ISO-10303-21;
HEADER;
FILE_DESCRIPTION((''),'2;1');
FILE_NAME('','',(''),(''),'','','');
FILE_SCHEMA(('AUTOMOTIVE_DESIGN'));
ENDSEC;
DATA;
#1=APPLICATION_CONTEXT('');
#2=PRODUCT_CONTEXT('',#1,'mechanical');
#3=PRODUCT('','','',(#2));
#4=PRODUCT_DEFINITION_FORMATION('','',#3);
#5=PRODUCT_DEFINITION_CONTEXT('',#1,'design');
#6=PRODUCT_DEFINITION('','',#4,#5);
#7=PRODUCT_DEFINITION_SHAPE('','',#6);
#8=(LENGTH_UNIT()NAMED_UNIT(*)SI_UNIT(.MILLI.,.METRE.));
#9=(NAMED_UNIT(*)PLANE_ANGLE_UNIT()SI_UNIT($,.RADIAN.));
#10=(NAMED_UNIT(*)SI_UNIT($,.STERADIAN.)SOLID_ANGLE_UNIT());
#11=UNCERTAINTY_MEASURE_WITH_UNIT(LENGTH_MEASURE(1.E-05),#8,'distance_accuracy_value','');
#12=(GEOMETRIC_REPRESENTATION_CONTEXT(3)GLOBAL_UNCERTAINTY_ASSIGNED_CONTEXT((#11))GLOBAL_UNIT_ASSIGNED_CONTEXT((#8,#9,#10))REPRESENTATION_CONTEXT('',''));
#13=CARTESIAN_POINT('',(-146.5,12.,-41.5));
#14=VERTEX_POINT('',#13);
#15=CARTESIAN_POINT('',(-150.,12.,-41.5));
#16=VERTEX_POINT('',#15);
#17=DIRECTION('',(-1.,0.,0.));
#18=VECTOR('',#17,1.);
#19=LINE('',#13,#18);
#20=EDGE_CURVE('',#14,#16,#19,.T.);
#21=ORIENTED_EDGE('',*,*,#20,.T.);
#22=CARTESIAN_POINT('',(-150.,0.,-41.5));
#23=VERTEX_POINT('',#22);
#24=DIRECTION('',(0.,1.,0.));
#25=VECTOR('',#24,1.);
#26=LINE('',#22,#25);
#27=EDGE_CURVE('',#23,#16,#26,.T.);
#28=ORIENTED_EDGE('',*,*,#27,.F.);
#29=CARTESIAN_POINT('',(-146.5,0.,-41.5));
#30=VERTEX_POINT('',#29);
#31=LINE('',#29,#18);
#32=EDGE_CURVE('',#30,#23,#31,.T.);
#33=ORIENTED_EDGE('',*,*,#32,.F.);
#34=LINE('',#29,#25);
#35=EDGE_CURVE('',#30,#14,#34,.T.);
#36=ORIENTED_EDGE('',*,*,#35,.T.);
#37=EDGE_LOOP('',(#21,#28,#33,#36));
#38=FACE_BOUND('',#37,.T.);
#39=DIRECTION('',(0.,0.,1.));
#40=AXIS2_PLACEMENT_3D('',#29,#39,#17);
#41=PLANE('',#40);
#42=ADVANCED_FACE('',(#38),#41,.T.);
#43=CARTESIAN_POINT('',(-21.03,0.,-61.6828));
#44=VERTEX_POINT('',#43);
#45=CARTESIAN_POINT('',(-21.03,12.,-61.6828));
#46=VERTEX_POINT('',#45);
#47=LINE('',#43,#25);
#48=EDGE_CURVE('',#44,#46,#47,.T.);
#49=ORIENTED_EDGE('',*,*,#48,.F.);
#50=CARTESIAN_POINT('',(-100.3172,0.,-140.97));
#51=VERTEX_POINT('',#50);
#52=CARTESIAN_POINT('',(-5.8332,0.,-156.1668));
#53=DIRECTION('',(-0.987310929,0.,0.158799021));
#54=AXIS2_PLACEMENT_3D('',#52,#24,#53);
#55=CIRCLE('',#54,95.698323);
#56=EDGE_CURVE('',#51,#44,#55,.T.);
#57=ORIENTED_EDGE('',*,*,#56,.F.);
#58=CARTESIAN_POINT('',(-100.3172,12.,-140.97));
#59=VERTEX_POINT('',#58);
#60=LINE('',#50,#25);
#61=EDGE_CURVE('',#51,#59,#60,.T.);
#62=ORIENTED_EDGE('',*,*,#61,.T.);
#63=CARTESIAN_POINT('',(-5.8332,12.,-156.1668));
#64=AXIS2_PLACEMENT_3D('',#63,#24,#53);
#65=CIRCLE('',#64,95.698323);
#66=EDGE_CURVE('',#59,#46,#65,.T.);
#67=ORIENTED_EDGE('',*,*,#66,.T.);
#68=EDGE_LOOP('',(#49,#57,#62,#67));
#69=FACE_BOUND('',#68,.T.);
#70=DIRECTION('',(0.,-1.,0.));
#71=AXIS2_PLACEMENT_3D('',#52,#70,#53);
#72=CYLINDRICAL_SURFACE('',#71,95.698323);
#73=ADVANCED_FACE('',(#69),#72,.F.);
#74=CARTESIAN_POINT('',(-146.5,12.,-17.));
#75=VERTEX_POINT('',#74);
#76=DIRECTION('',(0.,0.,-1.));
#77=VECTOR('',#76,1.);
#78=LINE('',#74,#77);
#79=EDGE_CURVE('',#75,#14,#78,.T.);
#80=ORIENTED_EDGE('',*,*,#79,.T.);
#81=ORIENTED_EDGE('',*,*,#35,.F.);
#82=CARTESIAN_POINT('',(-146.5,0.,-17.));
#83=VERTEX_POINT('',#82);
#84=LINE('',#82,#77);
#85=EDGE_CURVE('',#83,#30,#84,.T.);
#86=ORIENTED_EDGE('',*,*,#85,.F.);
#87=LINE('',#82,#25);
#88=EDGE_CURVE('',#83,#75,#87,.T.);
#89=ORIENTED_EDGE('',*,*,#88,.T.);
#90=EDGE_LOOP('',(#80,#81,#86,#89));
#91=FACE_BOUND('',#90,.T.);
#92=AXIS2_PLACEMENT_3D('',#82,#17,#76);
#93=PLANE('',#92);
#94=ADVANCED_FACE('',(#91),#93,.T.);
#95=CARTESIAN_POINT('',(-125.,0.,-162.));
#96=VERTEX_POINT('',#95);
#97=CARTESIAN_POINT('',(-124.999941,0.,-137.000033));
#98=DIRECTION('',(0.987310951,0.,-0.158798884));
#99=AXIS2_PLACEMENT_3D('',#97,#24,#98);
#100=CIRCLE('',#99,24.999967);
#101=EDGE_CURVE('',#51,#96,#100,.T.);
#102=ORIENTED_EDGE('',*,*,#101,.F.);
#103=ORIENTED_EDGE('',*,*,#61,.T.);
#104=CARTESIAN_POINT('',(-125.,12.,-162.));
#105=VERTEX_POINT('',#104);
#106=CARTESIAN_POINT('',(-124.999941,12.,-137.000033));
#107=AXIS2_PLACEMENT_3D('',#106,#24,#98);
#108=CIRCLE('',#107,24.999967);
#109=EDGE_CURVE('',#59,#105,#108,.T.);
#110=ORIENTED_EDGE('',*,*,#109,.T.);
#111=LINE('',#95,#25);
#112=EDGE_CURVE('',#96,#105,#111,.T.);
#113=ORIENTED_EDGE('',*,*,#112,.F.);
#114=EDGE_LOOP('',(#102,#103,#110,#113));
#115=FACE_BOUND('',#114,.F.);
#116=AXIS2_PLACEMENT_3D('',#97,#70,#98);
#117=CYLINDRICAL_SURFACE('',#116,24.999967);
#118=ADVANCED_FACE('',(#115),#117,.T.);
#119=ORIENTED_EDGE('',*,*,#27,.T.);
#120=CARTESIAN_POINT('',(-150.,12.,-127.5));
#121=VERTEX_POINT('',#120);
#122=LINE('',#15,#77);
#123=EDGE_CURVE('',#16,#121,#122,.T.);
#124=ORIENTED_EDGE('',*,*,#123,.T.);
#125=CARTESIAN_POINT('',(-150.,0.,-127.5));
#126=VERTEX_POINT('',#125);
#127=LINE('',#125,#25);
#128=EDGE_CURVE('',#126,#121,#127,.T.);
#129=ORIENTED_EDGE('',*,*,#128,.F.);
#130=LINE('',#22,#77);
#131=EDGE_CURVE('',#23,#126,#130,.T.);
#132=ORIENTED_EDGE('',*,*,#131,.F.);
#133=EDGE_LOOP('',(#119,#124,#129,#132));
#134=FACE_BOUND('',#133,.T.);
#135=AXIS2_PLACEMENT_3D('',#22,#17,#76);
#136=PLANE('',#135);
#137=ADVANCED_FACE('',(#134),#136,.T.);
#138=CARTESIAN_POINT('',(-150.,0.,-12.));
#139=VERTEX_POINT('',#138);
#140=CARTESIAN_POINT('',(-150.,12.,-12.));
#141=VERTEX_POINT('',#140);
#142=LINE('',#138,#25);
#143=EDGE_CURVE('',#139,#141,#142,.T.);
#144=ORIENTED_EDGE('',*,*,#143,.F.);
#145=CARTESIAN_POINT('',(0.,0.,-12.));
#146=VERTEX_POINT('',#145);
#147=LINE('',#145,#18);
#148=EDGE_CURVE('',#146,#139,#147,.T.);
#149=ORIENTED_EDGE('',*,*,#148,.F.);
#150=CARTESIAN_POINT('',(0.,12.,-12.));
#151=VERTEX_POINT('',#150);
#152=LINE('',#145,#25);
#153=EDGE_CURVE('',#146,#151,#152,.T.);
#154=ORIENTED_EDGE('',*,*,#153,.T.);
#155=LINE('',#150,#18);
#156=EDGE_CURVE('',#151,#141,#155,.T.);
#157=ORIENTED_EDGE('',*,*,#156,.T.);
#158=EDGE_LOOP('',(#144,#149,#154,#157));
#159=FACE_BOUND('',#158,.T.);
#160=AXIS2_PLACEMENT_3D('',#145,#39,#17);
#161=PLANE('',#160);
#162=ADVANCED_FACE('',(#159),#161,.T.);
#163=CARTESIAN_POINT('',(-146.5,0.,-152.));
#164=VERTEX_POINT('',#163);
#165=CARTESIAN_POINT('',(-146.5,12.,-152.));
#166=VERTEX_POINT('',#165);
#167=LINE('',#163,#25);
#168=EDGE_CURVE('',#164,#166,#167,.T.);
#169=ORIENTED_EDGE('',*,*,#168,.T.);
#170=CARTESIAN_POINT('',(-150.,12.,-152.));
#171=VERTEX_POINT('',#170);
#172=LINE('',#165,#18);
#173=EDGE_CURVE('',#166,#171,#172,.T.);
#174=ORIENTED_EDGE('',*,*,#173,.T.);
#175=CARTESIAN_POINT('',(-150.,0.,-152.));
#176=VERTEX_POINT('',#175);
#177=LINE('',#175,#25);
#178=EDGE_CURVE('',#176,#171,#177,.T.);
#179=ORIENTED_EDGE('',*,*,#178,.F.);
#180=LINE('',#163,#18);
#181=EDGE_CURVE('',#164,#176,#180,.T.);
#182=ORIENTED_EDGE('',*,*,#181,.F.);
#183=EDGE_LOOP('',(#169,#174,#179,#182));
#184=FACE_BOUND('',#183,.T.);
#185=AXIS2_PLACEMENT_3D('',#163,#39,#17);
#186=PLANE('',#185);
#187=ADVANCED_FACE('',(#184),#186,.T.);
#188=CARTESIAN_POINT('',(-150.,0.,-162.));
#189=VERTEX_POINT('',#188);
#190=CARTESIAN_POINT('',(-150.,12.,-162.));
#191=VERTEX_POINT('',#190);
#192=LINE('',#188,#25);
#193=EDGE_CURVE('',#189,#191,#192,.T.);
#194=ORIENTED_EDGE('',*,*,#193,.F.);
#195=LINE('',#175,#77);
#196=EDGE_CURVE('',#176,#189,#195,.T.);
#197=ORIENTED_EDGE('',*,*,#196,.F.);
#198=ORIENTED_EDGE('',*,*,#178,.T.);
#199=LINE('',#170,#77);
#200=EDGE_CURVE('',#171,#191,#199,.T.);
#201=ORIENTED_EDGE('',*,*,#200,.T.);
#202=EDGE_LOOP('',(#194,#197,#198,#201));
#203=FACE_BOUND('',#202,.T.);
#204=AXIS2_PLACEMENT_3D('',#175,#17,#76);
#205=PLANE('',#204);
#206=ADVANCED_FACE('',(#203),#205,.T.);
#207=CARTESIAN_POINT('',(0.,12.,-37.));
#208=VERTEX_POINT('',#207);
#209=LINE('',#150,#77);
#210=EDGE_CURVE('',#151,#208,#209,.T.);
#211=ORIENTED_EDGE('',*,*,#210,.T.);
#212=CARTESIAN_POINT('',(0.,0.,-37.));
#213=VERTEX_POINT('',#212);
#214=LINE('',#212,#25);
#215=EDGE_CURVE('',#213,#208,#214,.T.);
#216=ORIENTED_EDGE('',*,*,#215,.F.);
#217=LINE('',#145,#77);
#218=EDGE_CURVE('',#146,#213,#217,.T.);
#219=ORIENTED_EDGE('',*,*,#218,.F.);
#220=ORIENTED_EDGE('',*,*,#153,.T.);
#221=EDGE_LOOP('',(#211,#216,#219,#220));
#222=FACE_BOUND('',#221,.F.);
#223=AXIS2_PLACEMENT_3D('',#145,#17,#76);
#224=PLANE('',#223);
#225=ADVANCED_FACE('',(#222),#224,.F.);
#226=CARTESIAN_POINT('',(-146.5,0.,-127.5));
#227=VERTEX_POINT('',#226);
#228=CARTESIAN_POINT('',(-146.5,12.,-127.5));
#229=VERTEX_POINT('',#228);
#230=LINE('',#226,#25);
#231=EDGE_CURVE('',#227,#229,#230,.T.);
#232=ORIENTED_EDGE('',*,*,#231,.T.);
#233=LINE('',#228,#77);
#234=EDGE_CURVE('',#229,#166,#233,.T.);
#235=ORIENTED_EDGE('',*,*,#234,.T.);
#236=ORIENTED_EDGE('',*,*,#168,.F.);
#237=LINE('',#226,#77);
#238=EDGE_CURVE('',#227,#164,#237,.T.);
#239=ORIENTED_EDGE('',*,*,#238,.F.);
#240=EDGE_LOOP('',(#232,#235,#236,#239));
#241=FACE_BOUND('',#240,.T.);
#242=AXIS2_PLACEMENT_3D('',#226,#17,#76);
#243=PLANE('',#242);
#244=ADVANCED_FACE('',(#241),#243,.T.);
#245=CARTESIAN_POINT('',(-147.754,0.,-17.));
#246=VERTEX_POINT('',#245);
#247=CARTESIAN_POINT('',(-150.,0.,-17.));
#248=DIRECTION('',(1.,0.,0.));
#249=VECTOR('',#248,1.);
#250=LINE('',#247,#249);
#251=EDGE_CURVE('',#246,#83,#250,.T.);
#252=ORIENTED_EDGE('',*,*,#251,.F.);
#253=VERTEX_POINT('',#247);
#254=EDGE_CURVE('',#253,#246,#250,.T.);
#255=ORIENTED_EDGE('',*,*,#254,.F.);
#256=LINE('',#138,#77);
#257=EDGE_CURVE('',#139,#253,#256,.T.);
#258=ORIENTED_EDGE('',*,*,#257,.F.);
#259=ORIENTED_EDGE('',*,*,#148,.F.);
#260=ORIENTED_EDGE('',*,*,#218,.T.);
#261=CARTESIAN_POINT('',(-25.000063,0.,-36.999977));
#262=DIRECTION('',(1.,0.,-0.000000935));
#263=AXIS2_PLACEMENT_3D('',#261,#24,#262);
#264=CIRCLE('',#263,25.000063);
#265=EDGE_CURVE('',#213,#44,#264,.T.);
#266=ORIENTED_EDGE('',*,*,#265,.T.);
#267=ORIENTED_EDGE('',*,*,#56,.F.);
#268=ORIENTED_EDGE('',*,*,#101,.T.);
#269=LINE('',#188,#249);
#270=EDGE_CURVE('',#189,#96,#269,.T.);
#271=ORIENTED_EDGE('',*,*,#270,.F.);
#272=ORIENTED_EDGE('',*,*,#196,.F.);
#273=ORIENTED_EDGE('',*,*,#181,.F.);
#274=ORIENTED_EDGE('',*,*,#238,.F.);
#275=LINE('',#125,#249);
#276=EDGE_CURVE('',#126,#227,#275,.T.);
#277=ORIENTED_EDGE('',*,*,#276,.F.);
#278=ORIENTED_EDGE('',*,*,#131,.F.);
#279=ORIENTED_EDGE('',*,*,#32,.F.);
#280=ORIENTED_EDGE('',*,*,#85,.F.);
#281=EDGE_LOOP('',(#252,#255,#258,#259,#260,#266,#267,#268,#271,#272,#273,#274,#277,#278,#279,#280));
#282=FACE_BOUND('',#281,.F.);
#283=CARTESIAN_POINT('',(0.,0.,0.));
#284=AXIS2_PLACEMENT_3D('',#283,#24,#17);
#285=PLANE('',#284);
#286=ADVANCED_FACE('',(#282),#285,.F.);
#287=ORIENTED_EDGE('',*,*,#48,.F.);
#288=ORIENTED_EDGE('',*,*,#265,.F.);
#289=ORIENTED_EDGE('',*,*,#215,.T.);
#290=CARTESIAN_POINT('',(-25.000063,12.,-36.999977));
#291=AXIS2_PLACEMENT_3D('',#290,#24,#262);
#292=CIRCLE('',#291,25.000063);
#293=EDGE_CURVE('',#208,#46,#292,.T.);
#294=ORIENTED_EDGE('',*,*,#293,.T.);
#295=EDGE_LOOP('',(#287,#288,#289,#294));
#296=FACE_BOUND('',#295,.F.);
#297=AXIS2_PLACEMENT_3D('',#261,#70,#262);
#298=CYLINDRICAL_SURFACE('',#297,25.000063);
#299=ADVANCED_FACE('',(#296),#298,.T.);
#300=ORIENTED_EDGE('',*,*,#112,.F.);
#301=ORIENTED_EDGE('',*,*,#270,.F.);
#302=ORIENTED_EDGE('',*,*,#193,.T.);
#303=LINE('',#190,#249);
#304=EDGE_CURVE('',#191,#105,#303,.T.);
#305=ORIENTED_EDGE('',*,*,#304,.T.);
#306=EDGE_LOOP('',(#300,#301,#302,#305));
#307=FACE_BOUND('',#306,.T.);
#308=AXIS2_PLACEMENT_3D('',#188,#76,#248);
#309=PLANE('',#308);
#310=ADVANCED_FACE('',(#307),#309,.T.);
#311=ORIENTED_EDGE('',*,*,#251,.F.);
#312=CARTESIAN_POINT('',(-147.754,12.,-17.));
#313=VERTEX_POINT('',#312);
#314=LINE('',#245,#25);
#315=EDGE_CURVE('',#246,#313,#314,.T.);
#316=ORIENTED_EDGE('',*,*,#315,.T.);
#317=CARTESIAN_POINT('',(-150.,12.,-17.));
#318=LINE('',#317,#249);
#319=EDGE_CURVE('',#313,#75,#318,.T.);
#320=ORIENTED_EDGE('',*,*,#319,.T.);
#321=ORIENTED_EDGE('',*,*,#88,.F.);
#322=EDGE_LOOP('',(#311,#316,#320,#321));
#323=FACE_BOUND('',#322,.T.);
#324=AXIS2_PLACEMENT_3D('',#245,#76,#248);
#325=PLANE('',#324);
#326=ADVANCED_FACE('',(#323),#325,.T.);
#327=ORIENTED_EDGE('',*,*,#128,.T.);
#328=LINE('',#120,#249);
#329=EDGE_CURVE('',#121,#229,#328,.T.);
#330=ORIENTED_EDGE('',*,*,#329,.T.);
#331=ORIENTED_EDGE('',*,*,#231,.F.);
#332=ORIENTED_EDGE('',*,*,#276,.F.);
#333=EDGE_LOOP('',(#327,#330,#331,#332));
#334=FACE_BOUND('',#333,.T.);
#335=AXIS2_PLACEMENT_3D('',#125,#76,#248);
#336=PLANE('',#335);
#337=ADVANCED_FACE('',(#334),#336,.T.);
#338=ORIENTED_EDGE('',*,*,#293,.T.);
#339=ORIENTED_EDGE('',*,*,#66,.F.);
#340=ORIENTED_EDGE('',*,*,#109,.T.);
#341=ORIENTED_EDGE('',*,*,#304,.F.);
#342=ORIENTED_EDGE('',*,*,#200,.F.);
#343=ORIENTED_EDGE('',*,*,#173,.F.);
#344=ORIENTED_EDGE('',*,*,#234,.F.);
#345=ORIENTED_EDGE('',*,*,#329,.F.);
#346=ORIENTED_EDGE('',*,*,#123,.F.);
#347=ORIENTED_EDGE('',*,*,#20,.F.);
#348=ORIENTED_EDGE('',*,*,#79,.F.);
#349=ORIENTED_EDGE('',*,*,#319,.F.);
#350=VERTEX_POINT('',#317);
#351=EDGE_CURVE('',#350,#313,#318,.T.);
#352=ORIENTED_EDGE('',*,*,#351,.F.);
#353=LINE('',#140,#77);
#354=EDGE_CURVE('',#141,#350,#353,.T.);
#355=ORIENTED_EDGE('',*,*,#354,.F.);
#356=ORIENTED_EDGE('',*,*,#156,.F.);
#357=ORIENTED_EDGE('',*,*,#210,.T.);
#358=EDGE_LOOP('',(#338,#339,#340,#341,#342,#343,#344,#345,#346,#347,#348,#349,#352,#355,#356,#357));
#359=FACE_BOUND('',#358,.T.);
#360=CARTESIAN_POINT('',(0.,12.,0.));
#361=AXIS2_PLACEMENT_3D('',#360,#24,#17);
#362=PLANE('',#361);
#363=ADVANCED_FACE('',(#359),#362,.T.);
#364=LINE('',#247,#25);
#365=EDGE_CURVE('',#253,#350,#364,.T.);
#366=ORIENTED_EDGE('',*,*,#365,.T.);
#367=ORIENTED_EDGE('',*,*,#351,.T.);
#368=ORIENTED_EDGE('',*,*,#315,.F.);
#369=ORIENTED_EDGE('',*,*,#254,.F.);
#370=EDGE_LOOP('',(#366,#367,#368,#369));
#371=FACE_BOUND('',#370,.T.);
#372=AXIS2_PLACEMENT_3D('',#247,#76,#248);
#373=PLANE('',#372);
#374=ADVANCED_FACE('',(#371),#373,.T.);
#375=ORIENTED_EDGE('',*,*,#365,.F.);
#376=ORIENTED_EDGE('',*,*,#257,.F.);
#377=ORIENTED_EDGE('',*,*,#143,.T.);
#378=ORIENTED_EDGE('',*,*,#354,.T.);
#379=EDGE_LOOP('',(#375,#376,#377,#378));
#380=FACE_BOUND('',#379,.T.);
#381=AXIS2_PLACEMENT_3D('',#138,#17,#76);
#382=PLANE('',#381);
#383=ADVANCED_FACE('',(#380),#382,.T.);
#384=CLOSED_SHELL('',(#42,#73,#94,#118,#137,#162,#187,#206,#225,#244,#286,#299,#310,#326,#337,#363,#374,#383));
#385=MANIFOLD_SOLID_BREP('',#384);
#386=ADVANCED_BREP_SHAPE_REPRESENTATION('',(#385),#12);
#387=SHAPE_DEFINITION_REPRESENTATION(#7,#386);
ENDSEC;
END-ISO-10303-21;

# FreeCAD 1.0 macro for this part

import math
import FreeCAD as App
import Part
import Sketcher
from FreeCAD import Vector
Q = App.Units.Quantity

doc = App.newDocument("Part")
body = doc.addObject("PartDesign::Body", "Body")

# Sketch on XZ plane
sketch1 = body.newObject("Sketcher::SketchObject", "Sketch")
sketch1.AttachmentSupport = (doc.getObject("XZ_Plane"), [""])
sketch1.MapMode = "FlatFace"
sketch1.addGeometry([
    Part.LineSegment(Vector(-150, -12, 0), Vector(0, -12, 0)),  # 0
    Part.LineSegment(Vector(0, -12, 0), Vector(0, -37, 0)),  # 1
    Part.ArcOfCircle(Part.Circle(Vector(-25, -37, 0), Vector(0, 0, 1), 25), math.radians(-81), math.radians(0)),  # 2
    Part.ArcOfCircle(Part.Circle(Vector(-5.8, -156.2, 0), Vector(0, 0, 1), 95.7), math.radians(99), math.radians(171)),  # 3
    Part.ArcOfCircle(Part.Circle(Vector(-125, -137, 0), Vector(0, 0, 1), 25), math.radians(-90), math.radians(-9)),  # 4
    Part.LineSegment(Vector(-125, -162, 0), Vector(-150, -162, 0)),  # 5
    Part.LineSegment(Vector(-150, -162, 0), Vector(-150, -152, 0)),  # 6
    Part.LineSegment(Vector(-150, -152, 0), Vector(-146.5, -152, 0)),  # 7
    Part.LineSegment(Vector(-146.5, -152, 0), Vector(-146.5, -127.5, 0)),  # 8
    Part.LineSegment(Vector(-146.5, -127.5, 0), Vector(-150, -127.5, 0)),  # 9
    Part.LineSegment(Vector(-150, -127.5, 0), Vector(-150, -41.5, 0)),  # 10
    Part.LineSegment(Vector(-150, -41.5, 0), Vector(-146.5, -41.5, 0)),  # 11
    Part.LineSegment(Vector(-146.5, -41.5, 0), Vector(-146.5, -17, 0)),  # 12
    Part.LineSegment(Vector(-146.5, -17, 0), Vector(-150, -17, 0)),  # 13
    Part.LineSegment(Vector(-150, -17, 0), Vector(-150, -12, 0)),  # 14
], False)
sketch1.addConstraint([
    Sketcher.Constraint("Coincident", 0, 2, 1, 1),
    Sketcher.Constraint("Tangent", 1, 2, 2, 2),
    Sketcher.Constraint("Tangent", 2, 1, 3, 1),
    Sketcher.Constraint("Tangent", 3, 2, 4, 2),
    Sketcher.Constraint("Tangent", 4, 1, 5, 1),
    Sketcher.Constraint("Coincident", 5, 2, 6, 1),
    Sketcher.Constraint("Coincident", 6, 2, 7, 1),
    Sketcher.Constraint("Coincident", 7, 2, 8, 1),
    Sketcher.Constraint("Coincident", 8, 2, 9, 1),
    Sketcher.Constraint("Coincident", 9, 2, 10, 1),
    Sketcher.Constraint("Coincident", 10, 2, 11, 1),
    Sketcher.Constraint("Coincident", 11, 2, 12, 1),
    Sketcher.Constraint("Coincident", 12, 2, 13, 1),
    Sketcher.Constraint("Coincident", 13, 2, 14, 1),
    Sketcher.Constraint("Coincident", 14, 2, 0, 1),
    Sketcher.Constraint("Horizontal", 0),
    Sketcher.Constraint("Vertical", 1),
    Sketcher.Constraint("Horizontal", 5),
    Sketcher.Constraint("Vertical", 6),
    Sketcher.Constraint("Horizontal", 7),
    Sketcher.Constraint("Vertical", 8),
    Sketcher.Constraint("Horizontal", 9),
    Sketcher.Constraint("Vertical", 10),
    Sketcher.Constraint("Horizontal", 11),
    Sketcher.Constraint("Vertical", 12),
    Sketcher.Constraint("Horizontal", 13),
    Sketcher.Constraint("Vertical", 14),
    Sketcher.Constraint("Equal", 2, 4),
    Sketcher.Constraint("PointOnObject", 0, 2, -2),
    Sketcher.Constraint("Vertical", 6, 2, 9, 2),
    Sketcher.Constraint("Vertical", 8, 2, 11, 2),
    Sketcher.Constraint("Vertical", 10, 2, 13, 2),
    Sketcher.Constraint("Equal", 5, 1),
    Sketcher.Constraint("Equal", 8, 12),
    Sketcher.Constraint("Radius", 2, Q("25 mm")),
    Sketcher.Constraint("DistanceX", 0, 1, 0, 2, Q("150 mm")),
    Sketcher.Constraint("DistanceX", 5, 2, 5, 1, Q("25 mm")),
    Sketcher.Constraint("DistanceY", 6, 1, 6, 2, Q("10 mm")),
    Sketcher.Constraint("DistanceY", 10, 1, 10, 2, Q("86 mm")),
    Sketcher.Constraint("DistanceY", 14, 1, 14, 2, Q("5 mm")),
    Sketcher.Constraint("DistanceX", 7, 1, 7, 2, Q("3.5 mm")),
    Sketcher.Constraint("DistanceY", 8, 1, 8, 2, Q("24.5 mm")),
    Sketcher.Constraint("DistanceY", 2, 3, -1, 1, Q("37 mm")),
    Sketcher.Constraint("Radius", 3, Q("95.6983 mm")),
])
pad1 = body.newObject("PartDesign::Pad", "Pad")
pad1.Profile = sketch1
pad1.Length = 12
pad1.Reversed = True

doc.recompute()
